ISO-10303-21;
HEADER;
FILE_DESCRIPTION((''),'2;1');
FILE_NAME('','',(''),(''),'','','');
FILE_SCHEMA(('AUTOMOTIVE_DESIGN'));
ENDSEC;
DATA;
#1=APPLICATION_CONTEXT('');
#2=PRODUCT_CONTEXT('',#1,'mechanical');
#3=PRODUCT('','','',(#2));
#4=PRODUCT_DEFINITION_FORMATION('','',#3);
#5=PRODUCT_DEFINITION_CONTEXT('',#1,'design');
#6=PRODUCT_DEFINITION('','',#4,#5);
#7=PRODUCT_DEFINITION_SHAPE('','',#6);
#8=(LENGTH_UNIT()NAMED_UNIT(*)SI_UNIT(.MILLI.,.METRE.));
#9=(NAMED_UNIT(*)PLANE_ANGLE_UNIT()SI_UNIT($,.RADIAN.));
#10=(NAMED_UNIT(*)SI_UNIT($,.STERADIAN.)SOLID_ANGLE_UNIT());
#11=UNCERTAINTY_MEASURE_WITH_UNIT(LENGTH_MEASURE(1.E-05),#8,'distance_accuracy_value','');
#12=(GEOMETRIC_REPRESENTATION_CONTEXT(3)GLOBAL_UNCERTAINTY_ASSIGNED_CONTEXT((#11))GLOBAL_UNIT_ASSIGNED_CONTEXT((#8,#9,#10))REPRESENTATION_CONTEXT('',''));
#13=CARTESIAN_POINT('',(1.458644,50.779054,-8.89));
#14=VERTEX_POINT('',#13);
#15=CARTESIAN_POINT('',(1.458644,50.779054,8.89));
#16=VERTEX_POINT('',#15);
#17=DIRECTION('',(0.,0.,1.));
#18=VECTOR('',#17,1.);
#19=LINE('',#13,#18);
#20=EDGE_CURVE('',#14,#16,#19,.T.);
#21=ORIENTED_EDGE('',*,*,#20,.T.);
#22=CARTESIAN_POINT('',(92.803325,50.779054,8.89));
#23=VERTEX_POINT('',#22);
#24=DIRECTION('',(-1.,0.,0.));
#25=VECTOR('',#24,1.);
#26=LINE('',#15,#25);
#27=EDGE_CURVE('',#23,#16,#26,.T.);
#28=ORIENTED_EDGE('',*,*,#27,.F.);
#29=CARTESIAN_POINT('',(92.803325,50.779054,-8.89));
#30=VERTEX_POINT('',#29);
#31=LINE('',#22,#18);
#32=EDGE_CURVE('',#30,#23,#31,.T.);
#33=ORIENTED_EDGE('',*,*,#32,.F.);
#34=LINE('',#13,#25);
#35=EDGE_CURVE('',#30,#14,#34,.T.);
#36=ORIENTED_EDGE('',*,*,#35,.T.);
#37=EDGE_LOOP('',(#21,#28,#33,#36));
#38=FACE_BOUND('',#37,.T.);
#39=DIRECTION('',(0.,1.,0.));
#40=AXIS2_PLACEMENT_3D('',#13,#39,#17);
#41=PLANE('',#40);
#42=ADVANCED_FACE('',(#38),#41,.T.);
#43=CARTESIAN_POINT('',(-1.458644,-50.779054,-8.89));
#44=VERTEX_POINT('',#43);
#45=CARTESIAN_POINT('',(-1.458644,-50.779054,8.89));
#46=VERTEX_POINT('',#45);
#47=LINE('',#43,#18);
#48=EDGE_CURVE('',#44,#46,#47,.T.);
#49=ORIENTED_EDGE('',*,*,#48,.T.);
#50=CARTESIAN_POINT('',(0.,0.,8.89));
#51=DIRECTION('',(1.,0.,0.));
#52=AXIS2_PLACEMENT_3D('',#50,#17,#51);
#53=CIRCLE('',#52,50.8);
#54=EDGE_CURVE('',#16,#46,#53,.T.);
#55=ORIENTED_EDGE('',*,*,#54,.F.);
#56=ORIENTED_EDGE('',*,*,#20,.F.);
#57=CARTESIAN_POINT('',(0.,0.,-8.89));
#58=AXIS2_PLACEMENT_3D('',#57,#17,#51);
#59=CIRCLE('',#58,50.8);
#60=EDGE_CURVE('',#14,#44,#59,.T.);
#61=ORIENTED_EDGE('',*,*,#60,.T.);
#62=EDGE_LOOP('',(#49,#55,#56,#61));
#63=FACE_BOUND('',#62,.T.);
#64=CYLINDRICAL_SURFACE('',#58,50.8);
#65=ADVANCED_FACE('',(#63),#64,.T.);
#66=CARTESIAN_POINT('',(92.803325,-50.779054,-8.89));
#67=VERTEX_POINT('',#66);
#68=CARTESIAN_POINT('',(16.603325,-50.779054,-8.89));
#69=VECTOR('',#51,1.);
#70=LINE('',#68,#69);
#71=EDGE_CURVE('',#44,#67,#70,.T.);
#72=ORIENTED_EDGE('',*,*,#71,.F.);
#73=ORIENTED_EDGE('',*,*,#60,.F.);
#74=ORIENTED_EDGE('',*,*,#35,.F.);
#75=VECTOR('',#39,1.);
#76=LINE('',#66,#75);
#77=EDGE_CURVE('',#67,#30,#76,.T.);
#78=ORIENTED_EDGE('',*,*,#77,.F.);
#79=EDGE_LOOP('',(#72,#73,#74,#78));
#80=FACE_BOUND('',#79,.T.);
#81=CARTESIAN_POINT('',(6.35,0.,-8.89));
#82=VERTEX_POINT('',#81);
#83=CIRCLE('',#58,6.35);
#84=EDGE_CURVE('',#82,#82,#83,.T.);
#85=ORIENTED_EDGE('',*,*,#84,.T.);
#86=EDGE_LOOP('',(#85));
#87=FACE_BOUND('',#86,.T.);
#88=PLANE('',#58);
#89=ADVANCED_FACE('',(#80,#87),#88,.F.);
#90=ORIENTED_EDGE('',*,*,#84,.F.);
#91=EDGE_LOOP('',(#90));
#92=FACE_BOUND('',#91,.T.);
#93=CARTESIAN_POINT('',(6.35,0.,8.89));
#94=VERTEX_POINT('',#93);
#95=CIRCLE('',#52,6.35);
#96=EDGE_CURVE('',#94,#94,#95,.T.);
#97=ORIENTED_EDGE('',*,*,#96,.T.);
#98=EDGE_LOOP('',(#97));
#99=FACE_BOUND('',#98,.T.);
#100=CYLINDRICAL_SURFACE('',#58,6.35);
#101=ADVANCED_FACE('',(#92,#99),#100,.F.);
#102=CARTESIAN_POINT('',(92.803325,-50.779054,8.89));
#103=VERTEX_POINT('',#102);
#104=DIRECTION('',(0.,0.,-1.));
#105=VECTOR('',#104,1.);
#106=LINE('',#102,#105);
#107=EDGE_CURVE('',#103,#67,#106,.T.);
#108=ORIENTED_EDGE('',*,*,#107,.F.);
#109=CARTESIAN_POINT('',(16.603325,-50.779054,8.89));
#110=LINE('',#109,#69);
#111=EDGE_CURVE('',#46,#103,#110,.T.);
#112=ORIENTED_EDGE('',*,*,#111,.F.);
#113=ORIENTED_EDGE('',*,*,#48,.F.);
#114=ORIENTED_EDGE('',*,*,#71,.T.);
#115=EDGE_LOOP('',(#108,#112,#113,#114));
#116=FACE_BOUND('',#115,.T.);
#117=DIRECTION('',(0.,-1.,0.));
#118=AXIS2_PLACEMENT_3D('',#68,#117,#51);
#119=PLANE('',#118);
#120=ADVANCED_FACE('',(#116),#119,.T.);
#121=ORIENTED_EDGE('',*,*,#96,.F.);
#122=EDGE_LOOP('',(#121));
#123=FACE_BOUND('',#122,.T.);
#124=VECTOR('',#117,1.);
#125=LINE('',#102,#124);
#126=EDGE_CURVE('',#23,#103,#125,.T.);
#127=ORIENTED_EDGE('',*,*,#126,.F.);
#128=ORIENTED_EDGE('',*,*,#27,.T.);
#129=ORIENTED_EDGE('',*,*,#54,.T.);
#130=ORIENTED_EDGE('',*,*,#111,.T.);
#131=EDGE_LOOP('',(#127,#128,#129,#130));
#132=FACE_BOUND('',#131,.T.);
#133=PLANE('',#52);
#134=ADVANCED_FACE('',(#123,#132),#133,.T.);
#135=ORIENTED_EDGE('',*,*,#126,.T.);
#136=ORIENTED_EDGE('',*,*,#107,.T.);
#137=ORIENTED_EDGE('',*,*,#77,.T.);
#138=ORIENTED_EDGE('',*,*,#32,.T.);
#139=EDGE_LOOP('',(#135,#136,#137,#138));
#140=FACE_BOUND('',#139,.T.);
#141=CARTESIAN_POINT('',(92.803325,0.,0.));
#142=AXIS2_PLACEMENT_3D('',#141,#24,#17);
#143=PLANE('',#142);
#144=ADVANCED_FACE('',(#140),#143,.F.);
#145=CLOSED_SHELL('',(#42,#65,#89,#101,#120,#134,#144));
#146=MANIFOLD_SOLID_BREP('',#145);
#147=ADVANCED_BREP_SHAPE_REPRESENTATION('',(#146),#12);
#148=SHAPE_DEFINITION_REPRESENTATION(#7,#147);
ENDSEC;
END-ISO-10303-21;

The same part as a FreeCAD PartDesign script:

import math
import FreeCAD as App
import Part
import Sketcher
from FreeCAD import Vector
Q = App.Units.Quantity


def add_polygon(sketch, points):
    """Adds a closed chain of lines whose ends are joined by coincident constraints."""
    first, n = sketch.GeometryCount, len(points)
    for a, b in zip(points, points[1:] + points[:1]):
        sketch.addGeometry(Part.LineSegment(App.Vector(*a, 0), App.Vector(*b, 0)), False)
    for i in range(n):
        sketch.addConstraint(Sketcher.Constraint("Coincident", first + i, 2, first + (i + 1) % n, 1))

doc = App.newDocument("Part")
params = doc.addObject("Spreadsheet::Sheet", "Params")
for row, (alias, value) in enumerate([
    ("sketch1_radius", "2 in"),
    ("sketch1_diameter", "0.5 in"),
    ("pad1_length", "0.35 in"),
    ("pad1_length2", "0.35 in"),
    ("sketch2_height", "0.7 in"),
    ("pad2_length", "3 in"),
], start=1):
    params.set(f"A{row}", alias)
    params.set(f"B{row}", "=" + value)
    params.setAlias(f"B{row}", alias)

body = doc.addObject("PartDesign::Body", "Body")

# Sketch on XY plane
sketch1 = body.newObject("Sketcher::SketchObject", "Sketch")
sketch1.AttachmentSupport = (doc.getObject("XY_Plane"), [""])
sketch1.MapMode = "FlatFace"
sketch1.addGeometry(Part.LineSegment(Vector(16.603325, 50.779054, 0), Vector(1.458644, 50.779054, 0)), False)
sketch1.addGeometry(Part.ArcOfCircle(Part.Circle(Vector(0, 0, 0), Vector(0, 0, 1), 50.8), math.radians(88.354613), math.radians(268.354613)), False)
sketch1.addGeometry(Part.LineSegment(Vector(-1.458644, -50.779054, 0), Vector(16.603325, -50.779054, 0)), False)
sketch1.addGeometry(Part.LineSegment(Vector(16.603325, -50.779054, 0), Vector(16.603325, 50.779054, 0)), False)
sketch1.addGeometry(Part.Circle(Vector(0, 0, 0), Vector(0, 0, 1), 6.35), False)
sketch1.addConstraint(Sketcher.Constraint("Coincident", 0, 2, 1, 1))
sketch1.addConstraint(Sketcher.Constraint("Coincident", 1, 2, 2, 1))
sketch1.addConstraint(Sketcher.Constraint("Coincident", 2, 2, 3, 1))
sketch1.addConstraint(Sketcher.Constraint("Coincident", 3, 2, 0, 1))
sketch1.addConstraint(Sketcher.Constraint("Horizontal", 0))
sketch1.addConstraint(Sketcher.Constraint("Horizontal", 2))
sketch1.addConstraint(Sketcher.Constraint("Vertical", 3))
sketch1.addConstraint(Sketcher.Constraint("Coincident", 1, 3, -1, 1))
sketch1.addConstraint(Sketcher.Constraint("Coincident", 4, 3, -1, 1))
sketch1.addConstraint(Sketcher.Constraint("Radius", 1, Q("2 in")))
sketch1.addConstraint(Sketcher.Constraint("Diameter", 4, Q("0.5 in")))
sketch1.addConstraint(Sketcher.Constraint("DistanceX", 0, 2, 0, 1, 15.14468))
sketch1.addConstraint(Sketcher.Constraint("DistanceX", 2, 1, 2, 2, 18.061969))
sketch1.addConstraint(Sketcher.Constraint("DistanceX", -1, 1, 0, 2, 1.458644))
sketch1.setExpression("Constraints[9]", "Params.sketch1_radius")
sketch1.setExpression("Constraints[10]", "Params.sketch1_diameter")
pad1 = body.newObject("PartDesign::Pad", "Pad")
pad1.Profile = sketch1
pad1.Type = "TwoLengths"
pad1.setExpression("Length", "Params.pad1_length")
pad1.setExpression("Length2", "Params.pad1_length2")

# Sketch on YZ plane
sketch2 = body.newObject("Sketcher::SketchObject", "Sketch001")
sketch2.AttachmentSupport = (doc.getObject("YZ_Plane"), [""])
sketch2.MapMode = "FlatFace"
sketch2.AttachmentOffset = App.Placement(Vector(0, 0, 16.603325), App.Rotation())
add_polygon(sketch2, [(50.779054, 8.89), (-50.779054, 8.89), (-50.779054, -8.89), (50.779054, -8.89)])  # lines 0-3
sketch2.addConstraint(Sketcher.Constraint("Horizontal", 0))
sketch2.addConstraint(Sketcher.Constraint("Vertical", 1))
sketch2.addConstraint(Sketcher.Constraint("Horizontal", 2))
sketch2.addConstraint(Sketcher.Constraint("Vertical", 3))
sketch2.addConstraint(Sketcher.Constraint("Symmetric", 0, 2, 2, 2, -1, 1))
sketch2.addConstraint(Sketcher.Constraint("DistanceY", 1, 2, 1, 1, Q("0.7 in")))
sketch2.addConstraint(Sketcher.Constraint("DistanceX", 0, 2, 0, 1, 101.558109))
sketch2.setExpression("Constraints[9]", "Params.sketch2_height")
pad2 = body.newObject("PartDesign::Pad", "Pad001")
pad2.Profile = sketch2
pad2.setExpression("Length", "Params.pad2_length")

doc.recompute()
